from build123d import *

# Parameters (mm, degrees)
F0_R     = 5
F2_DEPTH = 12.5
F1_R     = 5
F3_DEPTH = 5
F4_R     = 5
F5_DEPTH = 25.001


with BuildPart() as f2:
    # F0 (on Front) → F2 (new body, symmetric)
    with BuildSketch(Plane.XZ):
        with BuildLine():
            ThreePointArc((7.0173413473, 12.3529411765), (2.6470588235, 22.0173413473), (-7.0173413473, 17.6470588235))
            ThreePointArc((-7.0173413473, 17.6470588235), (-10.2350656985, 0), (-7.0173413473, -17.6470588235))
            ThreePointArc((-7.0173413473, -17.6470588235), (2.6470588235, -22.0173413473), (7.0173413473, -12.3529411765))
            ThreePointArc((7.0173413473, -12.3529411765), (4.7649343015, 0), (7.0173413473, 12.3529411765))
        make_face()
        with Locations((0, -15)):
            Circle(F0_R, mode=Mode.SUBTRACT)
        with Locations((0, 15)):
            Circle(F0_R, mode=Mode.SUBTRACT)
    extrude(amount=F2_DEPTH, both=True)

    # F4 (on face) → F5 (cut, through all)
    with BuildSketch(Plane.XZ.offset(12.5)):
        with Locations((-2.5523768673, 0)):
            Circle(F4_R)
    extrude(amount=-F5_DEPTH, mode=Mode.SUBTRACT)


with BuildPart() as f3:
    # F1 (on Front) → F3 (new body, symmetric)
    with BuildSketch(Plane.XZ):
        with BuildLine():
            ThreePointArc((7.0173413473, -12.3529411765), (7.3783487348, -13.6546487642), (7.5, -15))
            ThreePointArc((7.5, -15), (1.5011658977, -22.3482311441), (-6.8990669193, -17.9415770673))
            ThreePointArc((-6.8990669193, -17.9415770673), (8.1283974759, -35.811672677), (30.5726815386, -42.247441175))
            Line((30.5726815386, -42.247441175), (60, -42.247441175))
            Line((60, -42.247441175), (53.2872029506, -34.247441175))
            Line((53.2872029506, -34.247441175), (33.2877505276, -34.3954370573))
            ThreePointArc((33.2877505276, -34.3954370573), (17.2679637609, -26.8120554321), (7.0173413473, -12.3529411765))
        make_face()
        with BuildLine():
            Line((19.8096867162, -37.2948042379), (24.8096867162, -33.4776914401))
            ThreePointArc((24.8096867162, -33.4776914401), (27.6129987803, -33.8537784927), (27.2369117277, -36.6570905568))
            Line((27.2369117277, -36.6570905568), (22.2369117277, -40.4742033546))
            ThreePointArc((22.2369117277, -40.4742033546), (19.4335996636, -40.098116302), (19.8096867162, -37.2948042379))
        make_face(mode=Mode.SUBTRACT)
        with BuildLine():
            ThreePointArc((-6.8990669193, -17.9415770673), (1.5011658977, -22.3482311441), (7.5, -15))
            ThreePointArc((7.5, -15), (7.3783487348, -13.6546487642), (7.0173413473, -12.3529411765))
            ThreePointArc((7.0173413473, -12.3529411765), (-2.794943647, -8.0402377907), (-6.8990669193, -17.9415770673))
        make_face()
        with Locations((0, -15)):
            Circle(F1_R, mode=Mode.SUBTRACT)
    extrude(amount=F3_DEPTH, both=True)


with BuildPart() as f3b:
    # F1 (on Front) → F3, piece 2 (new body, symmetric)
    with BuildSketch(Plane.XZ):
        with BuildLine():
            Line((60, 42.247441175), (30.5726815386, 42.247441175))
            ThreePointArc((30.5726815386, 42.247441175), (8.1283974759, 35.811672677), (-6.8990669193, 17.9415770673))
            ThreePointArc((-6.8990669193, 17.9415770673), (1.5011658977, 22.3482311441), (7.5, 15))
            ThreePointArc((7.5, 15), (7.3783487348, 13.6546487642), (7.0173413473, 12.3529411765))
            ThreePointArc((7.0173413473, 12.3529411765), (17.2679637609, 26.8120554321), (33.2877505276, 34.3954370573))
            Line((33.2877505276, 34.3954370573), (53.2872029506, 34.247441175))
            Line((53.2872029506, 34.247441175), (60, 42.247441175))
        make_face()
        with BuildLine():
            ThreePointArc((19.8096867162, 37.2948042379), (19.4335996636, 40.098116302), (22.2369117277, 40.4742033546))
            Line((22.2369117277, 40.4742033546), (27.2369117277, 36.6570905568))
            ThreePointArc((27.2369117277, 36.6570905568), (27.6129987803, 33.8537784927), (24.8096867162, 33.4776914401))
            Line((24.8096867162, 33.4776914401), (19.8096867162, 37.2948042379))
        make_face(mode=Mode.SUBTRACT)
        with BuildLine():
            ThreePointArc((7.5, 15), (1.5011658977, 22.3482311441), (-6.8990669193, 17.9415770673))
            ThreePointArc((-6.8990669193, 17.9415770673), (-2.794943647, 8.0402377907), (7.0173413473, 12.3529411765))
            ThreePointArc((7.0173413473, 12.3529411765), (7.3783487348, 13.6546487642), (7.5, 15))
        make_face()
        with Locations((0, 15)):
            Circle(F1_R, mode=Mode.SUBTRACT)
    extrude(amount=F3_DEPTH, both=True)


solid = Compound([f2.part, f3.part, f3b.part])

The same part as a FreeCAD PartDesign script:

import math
import FreeCAD as App
import Part
import Sketcher
from FreeCAD import Vector
Q = App.Units.Quantity

doc = App.newDocument("Part")
body = doc.addObject("PartDesign::Body", "Body")

# Sketch on XZ plane
sketch1 = doc.addObject("Sketcher::SketchObject", "Sketch")
body.addObject(sketch1)
sketch1.AttachmentSupport = (doc.XZ_Plane, [""])
sketch1.MapMode = "FlatFace"
sketch1.addGeometry([
    Part.ArcOfCircle(Part.Circle(Vector(0, 15, 0), Vector(0, 0, 1), 8), math.radians(-21), math.radians(159)),  # 0
    Part.ArcOfCircle(Part.Circle(Vector(40, 0, 0), Vector(0, 0, 1), 50), math.radians(159), math.radians(201)),  # 1
    Part.ArcOfCircle(Part.Circle(Vector(0, -15, 0), Vector(0, 0, 1), 8), math.radians(-159), math.radians(21)),  # 2
    Part.ArcOfCircle(Part.Circle(Vector(40, 0, 0), Vector(0, 0, 1), 35), math.radians(159), math.radians(201)),  # 3
    Part.Circle(Vector(0, -15, 0), Vector(0, 0, 1), 5),  # 4
    Part.Circle(Vector(0, 15, 0), Vector(0, 0, 1), 5),  # 5
], False)
sketch1.addConstraint([
    Sketcher.Constraint("Tangent", 0, 2, 1, 1),
    Sketcher.Constraint("Tangent", 1, 2, 2, 1),
    Sketcher.Constraint("Tangent", 2, 2, 3, 2),
    Sketcher.Constraint("Tangent", 3, 1, 0, 1),
    Sketcher.Constraint("Coincident", 3, 3, 1, 3),
    Sketcher.Constraint("Coincident", 4, 3, 2, 3),
    Sketcher.Constraint("Coincident", 5, 3, 0, 3),
    Sketcher.Constraint("Equal", 4, 5),
    Sketcher.Constraint("Symmetric", 0, 3, 2, 3, -1, 1),
    Sketcher.Constraint("PointOnObject", 0, 3, -2),
    Sketcher.Constraint("Diameter", 4, Q("10 mm")),
    Sketcher.Constraint("Radius", 1, Q("50 mm")),
    Sketcher.Constraint("Radius", 3, Q("35 mm")),
    Sketcher.Constraint("DistanceY", -1, 1, 0, 3, Q("15 mm")),
])
pad1 = doc.addObject("PartDesign::Pad", "Pad")
body.addObject(pad1)
pad1.Profile = sketch1
pad1.Length = 25
pad1.Midplane = True

# Sketch on XZ plane
sketch2 = doc.addObject("Sketcher::SketchObject", "Sketch001")
body.addObject(sketch2)
sketch2.AttachmentSupport = (doc.XZ_Plane, [""])
sketch2.MapMode = "FlatFace"
sketch2.AttachmentOffset = App.Placement(Vector(0, 0, 12.5), App.Rotation())
sketch2.addGeometry(Part.Circle(Vector(-3, 0, 0), Vector(0, 0, 1), 5), False)
sketch2.addConstraint([
    Sketcher.Constraint("PointOnObject", 0, 3, -1),
    Sketcher.Constraint("Diameter", 0, Q("10 mm")),
    Sketcher.Constraint("DistanceX", 0, 3, -1, 1, Q("2.552377 mm")),
])
pocket1 = doc.addObject("PartDesign::Pocket", "Pocket")
body.addObject(pocket1)
pocket1.Profile = sketch2
pocket1.Type = "ThroughAll"
body2 = doc.addObject("PartDesign::Body", "Body001")

# Sketch on XZ plane
sketch3 = doc.addObject("Sketcher::SketchObject", "Sketch002")
body2.addObject(sketch3)
sketch3.AttachmentSupport = (doc.getObject("XZ_Plane001"), [""])
sketch3.MapMode = "FlatFace"
sketch3.addGeometry([
    Part.LineSegment(Vector(53.3, -34.2, 0), Vector(33.3, -34.4, 0)),  # 0
    Part.ArcOfCircle(Part.Circle(Vector(39.8, 0, 0), Vector(0, 0, 1), 35), math.radians(-159), math.radians(-101)),  # 1
    Part.ArcOfCircle(Part.Circle(Vector(0, -15, 0), Vector(0, 0, 1), 7.5), math.radians(21), math.radians(203)),  # 2
    Part.ArcOfCircle(Part.Circle(Vector(29.9, -2.3, 0), Vector(0, 0, 1), 40), math.radians(-157), math.radians(-89)),  # 3
    Part.LineSegment(Vector(30.6, -42.2, 0), Vector(60, -42.2, 0)),  # 4
    Part.LineSegment(Vector(60, -42.2, 0), Vector(53.3, -34.2, 0)),  # 5
    Part.ArcOfCircle(Part.Circle(Vector(21, -38.9, 0), Vector(0, 0, 1), 2), math.radians(127), math.radians(307)),  # 6
    Part.LineSegment(Vector(19.8, -37.3, 0), Vector(24.8, -33.5, 0)),  # 7
    Part.ArcOfCircle(Part.Circle(Vector(26, -35.1, 0), Vector(0, 0, 1), 2), math.radians(-53), math.radians(127)),  # 8
    Part.LineSegment(Vector(27.2, -36.7, 0), Vector(22.2, -40.5, 0)),  # 9
    Part.Circle(Vector(0, -15, 0), Vector(0, 0, 1), 5),  # 10
], False)
sketch3.addConstraint([
    Sketcher.Constraint("Coincident", 0, 2, 1, 2),
    Sketcher.Constraint("Tangent", 1, 1, 2, 1),
    Sketcher.Constraint("Tangent", 2, 2, 3, 1),
    Sketcher.Constraint("Coincident", 3, 2, 4, 1),
    Sketcher.Constraint("Coincident", 4, 2, 5, 1),
    Sketcher.Constraint("Coincident", 5, 2, 0, 1),
    Sketcher.Constraint("Tangent", 6, 1, 7, 1),
    Sketcher.Constraint("Tangent", 7, 2, 8, 2),
    Sketcher.Constraint("Tangent", 8, 1, 9, 1),
    Sketcher.Constraint("Tangent", 9, 2, 6, 2),
    Sketcher.Constraint("Horizontal", 4),
    Sketcher.Constraint("Coincident", 10, 3, 2, 3),
    Sketcher.Constraint("Equal", 6, 8),
    Sketcher.Constraint("PointOnObject", 1, 3, -1),
    Sketcher.Constraint("PointOnObject", 2, 3, -2),
    Sketcher.Constraint("Diameter", 10, Q("10 mm")),
    Sketcher.Constraint("Radius", 1, Q("35 mm")),
    Sketcher.Constraint("Radius", 3, Q("40 mm")),
    Sketcher.Constraint("Radius", 6, Q("2 mm")),
    Sketcher.Constraint("Radius", 2, Q("7.5 mm")),
    Sketcher.Constraint("Angle", 5, Q("130 deg")),
    Sketcher.Constraint("Distance", 0, Q("20 mm")),
    Sketcher.Constraint("DistanceY", 2, 3, -1, 1, Q("15 mm")),
    Sketcher.Constraint("DistanceX", -1, 1, 4, 2, Q("60 mm")),
    Sketcher.Constraint("DistanceX", 6, 3, 8, 3, Q("5 mm")),
    Sketcher.Constraint("DistanceY", 4, 2, 5, 2, Q("8 mm")),
    Sketcher.Constraint("DistanceX", 4, 1, 4, 2, Q("29.427318 mm")),
    Sketcher.Constraint("DistanceX", -1, 1, 6, 3, Q("21.023299 mm")),
    Sketcher.Constraint("DistanceY", 3, 2, 1, 1, Q("29.8945 mm")),
    Sketcher.Constraint("DistanceY", 6, 3, 6, 1, Q("1.5897 mm")),
    Sketcher.Constraint("DistanceY", 8, 3, -1, 1, Q("35.067391 mm")),
])
pad2 = doc.addObject("PartDesign::Pad", "Pad001")
body2.addObject(pad2)
pad2.Profile = sketch3
pad2.Length = 10
pad2.Midplane = True
body3 = doc.addObject("PartDesign::Body", "Body002")

# Sketch on XZ plane
sketch4 = doc.addObject("Sketcher::SketchObject", "Sketch003")
body3.addObject(sketch4)
sketch4.AttachmentSupport = (doc.getObject("XZ_Plane002"), [""])
sketch4.MapMode = "FlatFace"
sketch4.addGeometry([
    Part.LineSegment(Vector(60, 42.2, 0), Vector(30.6, 42.2, 0)),  # 0
    Part.ArcOfCircle(Part.Circle(Vector(29.9, 2.3, 0), Vector(0, 0, 1), 40), math.radians(89), math.radians(157)),  # 1
    Part.ArcOfCircle(Part.Circle(Vector(0, 15, 0), Vector(0, 0, 1), 7.5), math.radians(157), math.radians(339)),  # 2
    Part.ArcOfCircle(Part.Circle(Vector(39.8, 0, 0), Vector(0, 0, 1), 35), math.radians(101), math.radians(159)),  # 3
    Part.LineSegment(Vector(33.3, 34.4, 0), Vector(53.3, 34.2, 0)),  # 4
    Part.LineSegment(Vector(53.3, 34.2, 0), Vector(60, 42.2, 0)),  # 5
    Part.Circle(Vector(0, 15, 0), Vector(0, 0, 1), 5),  # 6
    Part.LineSegment(Vector(24.8, 33.5, 0), Vector(19.8, 37.3, 0)),  # 7
    Part.ArcOfCircle(Part.Circle(Vector(21, 38.9, 0), Vector(0, 0, 1), 2), math.radians(53), math.radians(233)),  # 8
    Part.LineSegment(Vector(22.2, 40.5, 0), Vector(27.2, 36.7, 0)),  # 9
    Part.ArcOfCircle(Part.Circle(Vector(26, 35.1, 0), Vector(0, 0, 1), 2), math.radians(-127), math.radians(53)),  # 10
], False)
sketch4.addConstraint([
    Sketcher.Constraint("Coincident", 0, 2, 1, 1),
    Sketcher.Constraint("Tangent", 1, 2, 2, 1),
    Sketcher.Constraint("Tangent", 2, 2, 3, 2),
    Sketcher.Constraint("Coincident", 3, 1, 4, 1),
    Sketcher.Constraint("Coincident", 4, 2, 5, 1),
    Sketcher.Constraint("Coincident", 5, 2, 0, 1),
    Sketcher.Constraint("Tangent", 7, 2, 8, 2),
    Sketcher.Constraint("Tangent", 8, 1, 9, 1),
    Sketcher.Constraint("Tangent", 9, 2, 10, 2),
    Sketcher.Constraint("Tangent", 10, 1, 7, 1),
    Sketcher.Constraint("Horizontal", 0),
    Sketcher.Constraint("Coincident", 6, 3, 2, 3),
    Sketcher.Constraint("Equal", 8, 10),
    Sketcher.Constraint("PointOnObject", 2, 3, -2),
    Sketcher.Constraint("PointOnObject", 3, 3, -1),
    Sketcher.Constraint("Diameter", 6, Q("10 mm")),
    Sketcher.Constraint("Radius", 1, Q("40 mm")),
    Sketcher.Constraint("Radius", 3, Q("35 mm")),
    Sketcher.Constraint("Radius", 8, Q("2 mm")),
    Sketcher.Constraint("Radius", 2, Q("7.5 mm")),
    Sketcher.Constraint("Angle", 5, Q("50 deg")),
    Sketcher.Constraint("Distance", 4, Q("20 mm")),
    Sketcher.Constraint("DistanceY", -1, 1, 2, 3, Q("15 mm")),
    Sketcher.Constraint("DistanceX", -1, 1, 5, 2, Q("60 mm")),
    Sketcher.Constraint("DistanceX", 8, 3, 10, 3, Q("5 mm")),
    Sketcher.Constraint("DistanceY", 4, 2, 0, 2, Q("8 mm")),
    Sketcher.Constraint("DistanceX", 0, 2, 0, 1, Q("29.427318 mm")),
    Sketcher.Constraint("DistanceX", -1, 1, 8, 3, Q("21.023299 mm")),
    Sketcher.Constraint("DistanceY", 7, 2, 8, 3, Q("1.5897 mm")),
    Sketcher.Constraint("DistanceY", -1, 1, 10, 3, Q("35.067391 mm")),
    Sketcher.Constraint("DistanceY", -1, 1, 0, 2, Q("42.247441 mm")),
])
pad3 = doc.addObject("PartDesign::Pad", "Pad002")
body3.addObject(pad3)
pad3.Profile = sketch4
pad3.Length = 10
pad3.Midplane = True

doc.recompute()
